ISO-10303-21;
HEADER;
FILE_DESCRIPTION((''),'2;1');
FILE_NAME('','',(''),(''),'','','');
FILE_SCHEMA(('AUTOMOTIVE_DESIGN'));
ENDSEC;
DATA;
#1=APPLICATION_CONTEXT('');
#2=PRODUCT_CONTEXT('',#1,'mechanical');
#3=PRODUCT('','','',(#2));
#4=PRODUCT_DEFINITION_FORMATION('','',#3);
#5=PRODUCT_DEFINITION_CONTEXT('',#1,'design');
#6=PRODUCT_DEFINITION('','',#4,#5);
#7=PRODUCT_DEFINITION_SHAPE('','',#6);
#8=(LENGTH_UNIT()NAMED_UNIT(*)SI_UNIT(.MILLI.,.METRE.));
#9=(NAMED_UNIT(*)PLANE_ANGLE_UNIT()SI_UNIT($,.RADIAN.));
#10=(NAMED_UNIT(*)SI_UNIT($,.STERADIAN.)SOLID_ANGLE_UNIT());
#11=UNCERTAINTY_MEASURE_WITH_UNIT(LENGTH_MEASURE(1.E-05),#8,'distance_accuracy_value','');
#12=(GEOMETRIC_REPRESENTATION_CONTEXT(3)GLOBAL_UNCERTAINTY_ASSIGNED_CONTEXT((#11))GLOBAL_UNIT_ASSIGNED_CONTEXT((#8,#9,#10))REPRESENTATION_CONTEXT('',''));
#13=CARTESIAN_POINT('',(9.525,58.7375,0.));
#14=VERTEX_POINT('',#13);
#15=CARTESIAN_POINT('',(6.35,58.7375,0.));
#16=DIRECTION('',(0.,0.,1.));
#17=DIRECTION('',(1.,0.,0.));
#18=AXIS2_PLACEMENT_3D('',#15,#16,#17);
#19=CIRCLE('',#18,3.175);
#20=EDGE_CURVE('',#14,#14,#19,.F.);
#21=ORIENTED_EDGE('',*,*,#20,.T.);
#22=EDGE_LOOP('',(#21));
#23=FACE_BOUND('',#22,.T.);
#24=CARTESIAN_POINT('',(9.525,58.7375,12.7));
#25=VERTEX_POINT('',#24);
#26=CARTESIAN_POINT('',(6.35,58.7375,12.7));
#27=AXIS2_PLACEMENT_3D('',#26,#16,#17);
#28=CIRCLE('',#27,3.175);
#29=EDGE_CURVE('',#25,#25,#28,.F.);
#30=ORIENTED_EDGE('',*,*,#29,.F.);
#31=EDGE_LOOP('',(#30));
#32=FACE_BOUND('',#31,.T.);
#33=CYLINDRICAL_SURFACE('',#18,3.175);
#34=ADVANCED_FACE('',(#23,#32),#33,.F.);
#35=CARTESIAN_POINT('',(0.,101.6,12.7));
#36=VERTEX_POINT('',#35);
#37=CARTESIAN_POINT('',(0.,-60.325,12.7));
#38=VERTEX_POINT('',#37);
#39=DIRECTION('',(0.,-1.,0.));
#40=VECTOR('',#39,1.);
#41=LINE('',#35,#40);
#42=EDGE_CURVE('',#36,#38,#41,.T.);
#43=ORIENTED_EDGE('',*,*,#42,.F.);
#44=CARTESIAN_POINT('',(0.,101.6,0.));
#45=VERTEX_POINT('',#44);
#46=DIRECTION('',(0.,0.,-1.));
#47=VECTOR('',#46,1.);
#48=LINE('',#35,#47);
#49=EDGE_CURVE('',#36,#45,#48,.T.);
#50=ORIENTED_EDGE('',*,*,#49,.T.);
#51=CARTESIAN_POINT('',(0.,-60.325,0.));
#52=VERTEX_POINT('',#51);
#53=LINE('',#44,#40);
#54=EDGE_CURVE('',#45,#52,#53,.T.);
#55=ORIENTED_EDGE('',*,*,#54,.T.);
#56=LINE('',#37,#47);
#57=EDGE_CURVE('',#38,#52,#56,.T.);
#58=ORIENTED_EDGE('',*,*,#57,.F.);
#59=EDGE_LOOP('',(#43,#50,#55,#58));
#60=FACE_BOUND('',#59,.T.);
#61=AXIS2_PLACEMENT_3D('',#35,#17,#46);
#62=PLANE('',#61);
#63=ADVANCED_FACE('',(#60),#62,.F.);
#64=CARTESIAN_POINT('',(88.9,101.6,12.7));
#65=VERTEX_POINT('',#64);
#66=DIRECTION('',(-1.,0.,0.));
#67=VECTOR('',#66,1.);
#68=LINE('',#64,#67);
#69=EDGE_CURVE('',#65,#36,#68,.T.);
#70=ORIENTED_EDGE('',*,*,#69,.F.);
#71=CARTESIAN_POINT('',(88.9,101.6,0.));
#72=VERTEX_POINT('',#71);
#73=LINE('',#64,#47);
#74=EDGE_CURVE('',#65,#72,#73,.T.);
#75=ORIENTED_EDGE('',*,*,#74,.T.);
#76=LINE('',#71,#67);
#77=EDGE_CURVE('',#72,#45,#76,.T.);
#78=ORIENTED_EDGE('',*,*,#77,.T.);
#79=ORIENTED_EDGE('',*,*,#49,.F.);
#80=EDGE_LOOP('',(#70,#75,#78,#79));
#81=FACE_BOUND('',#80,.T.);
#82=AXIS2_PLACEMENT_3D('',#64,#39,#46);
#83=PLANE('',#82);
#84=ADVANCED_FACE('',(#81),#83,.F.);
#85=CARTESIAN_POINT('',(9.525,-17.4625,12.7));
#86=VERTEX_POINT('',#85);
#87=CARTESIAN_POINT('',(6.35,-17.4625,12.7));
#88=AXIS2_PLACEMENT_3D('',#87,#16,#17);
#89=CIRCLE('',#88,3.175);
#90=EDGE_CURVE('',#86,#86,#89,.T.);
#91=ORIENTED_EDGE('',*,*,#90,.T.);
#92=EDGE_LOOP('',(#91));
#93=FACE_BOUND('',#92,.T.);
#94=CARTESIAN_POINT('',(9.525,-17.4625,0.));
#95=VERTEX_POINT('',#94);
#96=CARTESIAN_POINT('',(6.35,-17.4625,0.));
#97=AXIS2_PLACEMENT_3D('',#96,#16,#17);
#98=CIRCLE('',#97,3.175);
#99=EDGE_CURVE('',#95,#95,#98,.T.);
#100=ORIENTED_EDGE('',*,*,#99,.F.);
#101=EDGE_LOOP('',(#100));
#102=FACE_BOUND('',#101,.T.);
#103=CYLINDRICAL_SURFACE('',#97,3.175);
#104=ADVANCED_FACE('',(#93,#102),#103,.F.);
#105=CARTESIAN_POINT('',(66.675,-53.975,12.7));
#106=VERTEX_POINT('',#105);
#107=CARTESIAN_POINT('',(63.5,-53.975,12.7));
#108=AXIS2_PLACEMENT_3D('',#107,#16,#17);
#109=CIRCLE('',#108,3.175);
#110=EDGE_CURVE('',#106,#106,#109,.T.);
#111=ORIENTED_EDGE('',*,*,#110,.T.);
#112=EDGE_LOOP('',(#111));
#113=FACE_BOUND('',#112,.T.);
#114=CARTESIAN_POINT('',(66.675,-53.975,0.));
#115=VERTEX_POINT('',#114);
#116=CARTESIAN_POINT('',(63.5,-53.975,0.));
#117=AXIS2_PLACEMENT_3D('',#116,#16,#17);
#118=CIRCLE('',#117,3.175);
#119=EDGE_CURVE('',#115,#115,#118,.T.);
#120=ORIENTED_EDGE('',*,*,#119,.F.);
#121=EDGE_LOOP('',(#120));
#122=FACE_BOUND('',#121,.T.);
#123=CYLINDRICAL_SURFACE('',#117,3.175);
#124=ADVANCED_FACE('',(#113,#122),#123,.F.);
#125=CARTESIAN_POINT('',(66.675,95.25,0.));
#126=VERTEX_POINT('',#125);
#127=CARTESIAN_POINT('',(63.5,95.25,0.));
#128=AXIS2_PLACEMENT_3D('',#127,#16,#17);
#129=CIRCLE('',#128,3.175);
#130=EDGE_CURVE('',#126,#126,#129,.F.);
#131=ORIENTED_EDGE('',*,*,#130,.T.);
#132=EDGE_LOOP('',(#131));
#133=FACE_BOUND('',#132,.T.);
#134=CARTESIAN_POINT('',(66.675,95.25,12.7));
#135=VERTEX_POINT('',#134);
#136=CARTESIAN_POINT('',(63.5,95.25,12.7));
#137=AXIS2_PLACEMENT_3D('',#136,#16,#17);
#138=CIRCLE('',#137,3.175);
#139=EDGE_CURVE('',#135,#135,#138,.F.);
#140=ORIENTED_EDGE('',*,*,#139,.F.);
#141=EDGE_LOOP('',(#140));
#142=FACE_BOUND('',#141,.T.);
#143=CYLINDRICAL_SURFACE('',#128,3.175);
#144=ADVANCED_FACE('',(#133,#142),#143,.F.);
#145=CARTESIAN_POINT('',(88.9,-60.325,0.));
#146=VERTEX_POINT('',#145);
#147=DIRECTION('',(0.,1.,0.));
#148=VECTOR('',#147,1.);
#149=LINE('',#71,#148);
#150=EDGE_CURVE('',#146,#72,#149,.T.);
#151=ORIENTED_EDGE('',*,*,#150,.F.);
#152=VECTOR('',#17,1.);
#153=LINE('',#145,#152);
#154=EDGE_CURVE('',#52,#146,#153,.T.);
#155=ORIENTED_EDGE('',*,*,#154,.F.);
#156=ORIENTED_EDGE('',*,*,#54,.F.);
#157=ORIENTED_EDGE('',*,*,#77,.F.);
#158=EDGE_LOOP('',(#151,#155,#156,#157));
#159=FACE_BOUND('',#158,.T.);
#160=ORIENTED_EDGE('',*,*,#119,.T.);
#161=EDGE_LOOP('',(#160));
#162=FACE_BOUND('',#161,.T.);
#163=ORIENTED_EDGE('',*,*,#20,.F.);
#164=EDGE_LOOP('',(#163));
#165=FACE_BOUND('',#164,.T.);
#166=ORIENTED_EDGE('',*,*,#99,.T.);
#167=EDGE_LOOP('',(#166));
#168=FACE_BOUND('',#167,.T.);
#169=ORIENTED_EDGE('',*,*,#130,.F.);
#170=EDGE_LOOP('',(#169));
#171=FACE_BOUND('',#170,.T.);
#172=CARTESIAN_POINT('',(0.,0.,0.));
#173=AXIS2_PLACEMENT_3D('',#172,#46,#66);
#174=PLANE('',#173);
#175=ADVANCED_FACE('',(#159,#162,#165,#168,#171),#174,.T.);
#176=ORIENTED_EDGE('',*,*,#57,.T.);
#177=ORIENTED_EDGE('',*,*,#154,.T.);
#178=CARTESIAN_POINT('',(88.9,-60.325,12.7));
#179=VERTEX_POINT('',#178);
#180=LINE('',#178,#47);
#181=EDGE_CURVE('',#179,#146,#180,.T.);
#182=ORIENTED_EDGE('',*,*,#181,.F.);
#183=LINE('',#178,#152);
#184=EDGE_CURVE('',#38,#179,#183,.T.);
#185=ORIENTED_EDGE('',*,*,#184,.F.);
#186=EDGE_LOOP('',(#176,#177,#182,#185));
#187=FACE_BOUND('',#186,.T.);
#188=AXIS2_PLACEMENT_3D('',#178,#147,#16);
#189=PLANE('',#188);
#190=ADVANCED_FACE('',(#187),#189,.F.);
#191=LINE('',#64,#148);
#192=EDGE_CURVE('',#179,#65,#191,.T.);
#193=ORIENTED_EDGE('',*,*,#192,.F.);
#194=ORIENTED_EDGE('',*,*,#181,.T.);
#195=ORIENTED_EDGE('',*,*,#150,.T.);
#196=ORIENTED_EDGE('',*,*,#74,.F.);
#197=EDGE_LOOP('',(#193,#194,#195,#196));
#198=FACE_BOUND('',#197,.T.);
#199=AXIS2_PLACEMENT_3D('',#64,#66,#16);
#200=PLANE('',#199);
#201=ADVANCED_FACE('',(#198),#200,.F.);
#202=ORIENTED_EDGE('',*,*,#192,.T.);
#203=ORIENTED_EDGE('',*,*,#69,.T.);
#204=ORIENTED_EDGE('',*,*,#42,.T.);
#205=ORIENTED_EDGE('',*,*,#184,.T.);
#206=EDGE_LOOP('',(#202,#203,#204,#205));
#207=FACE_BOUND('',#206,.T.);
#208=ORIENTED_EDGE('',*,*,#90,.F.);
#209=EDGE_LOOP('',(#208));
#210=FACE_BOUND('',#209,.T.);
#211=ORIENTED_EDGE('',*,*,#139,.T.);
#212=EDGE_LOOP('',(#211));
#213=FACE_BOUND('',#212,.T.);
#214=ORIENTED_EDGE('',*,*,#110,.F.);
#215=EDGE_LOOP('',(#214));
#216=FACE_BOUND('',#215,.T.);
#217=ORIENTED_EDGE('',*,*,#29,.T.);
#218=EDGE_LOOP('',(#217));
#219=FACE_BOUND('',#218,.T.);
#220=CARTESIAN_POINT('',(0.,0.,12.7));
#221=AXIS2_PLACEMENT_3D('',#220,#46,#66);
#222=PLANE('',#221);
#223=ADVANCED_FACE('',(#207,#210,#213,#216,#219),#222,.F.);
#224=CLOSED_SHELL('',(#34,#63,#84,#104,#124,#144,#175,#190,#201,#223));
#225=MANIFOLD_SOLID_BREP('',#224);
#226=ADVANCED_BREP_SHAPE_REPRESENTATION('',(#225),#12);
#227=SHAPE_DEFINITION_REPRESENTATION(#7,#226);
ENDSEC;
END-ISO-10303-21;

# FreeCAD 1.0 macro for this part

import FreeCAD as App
import Part
import Sketcher
from FreeCAD import Vector
Q = App.Units.Quantity

doc = App.newDocument("Part")
body = doc.addObject("PartDesign::Body", "Body")

sketch1 = body.newObject("Sketcher::SketchObject", "Sketch")
sketch1.AttachmentSupport = (doc.getObject("XY_Plane"), [""])
sketch1.MapMode = "FlatFace"
sketch1.addGeometry([
    Part.LineSegment(Vector(0, 102, 0), Vector(0, -60, 0)),
    Part.LineSegment(Vector(0, -60, 0), Vector(89, -60, 0)),
    Part.LineSegment(Vector(89, -60, 0), Vector(89, 102, 0)),
    Part.LineSegment(Vector(89, 102, 0), Vector(0, 102, 0)),
], False)
sketch1.addConstraint([
    Sketcher.Constraint("Coincident", 0, 2, 1, 1),
    Sketcher.Constraint("Coincident", 1, 2, 2, 1),
    Sketcher.Constraint("Coincident", 2, 2, 3, 1),
    Sketcher.Constraint("Coincident", 3, 2, 0, 1),
    Sketcher.Constraint("Vertical", 0),
    Sketcher.Constraint("Horizontal", 1),
    Sketcher.Constraint("Vertical", 2),
    Sketcher.Constraint("Horizontal", 3),
    Sketcher.Constraint("PointOnObject", 0, 2, -2),
    Sketcher.Constraint("DistanceX", 1, 1, 1, 2, Q("3.5 in")),
    Sketcher.Constraint("DistanceY", -1, 1, 2, 2, Q("4 in")),
    Sketcher.Constraint("DistanceY", 0, 2, 0, 1, Q("6.375 in")),
])
pad1 = body.newObject("PartDesign::Pad", "Pad")
pad1.Profile = sketch1
pad1.Length = Q("0.5 in")

sketch2 = body.newObject("Sketcher::SketchObject", "Sketch001")
sketch2.AttachmentSupport = (doc.getObject("XY_Plane"), [""])
sketch2.MapMode = "FlatFace"
sketch2.AttachmentOffset = App.Placement(Vector(0, 0, 0.5 * 25.4), App.Rotation())
sketch2.addGeometry([
    Part.Circle(Vector(63.5, -54, 0), Vector(0, 0, 1), 3.2),
    Part.Circle(Vector(6.3, -17.5, 0), Vector(0, 0, 1), 3.2),
    Part.Circle(Vector(6.3, 58.7, 0), Vector(0, 0, 1), 3.2),
    Part.Circle(Vector(63.5, 95.2, 0), Vector(0, 0, 1), 3.2),
], False)
sketch2.addConstraint([
    Sketcher.Constraint("Equal", 0, 1),
    Sketcher.Constraint("Equal", 1, 2),
    Sketcher.Constraint("Equal", 2, 3),
    Sketcher.Constraint("Vertical", 1, 3, 2, 3),
    Sketcher.Constraint("Vertical", 0, 3, 3, 3),
    Sketcher.Constraint("Diameter", 0, Q("0.25 in")),
    Sketcher.Constraint("DistanceY", 1, 3, 2, 3, Q("3 in")),
    Sketcher.Constraint("DistanceX", -1, 1, 0, 3, Q("2.5 in")),
    Sketcher.Constraint("DistanceX", -1, 1, 1, 3, Q("0.25 in")),
    Sketcher.Constraint("DistanceY", -1, 1, 3, 3, Q("3.75 in")),
    Sketcher.Constraint("DistanceY", 0, 3, -1, 1, Q("2.125 in")),
    Sketcher.Constraint("DistanceY", 1, 3, -1, 1, Q("0.6875 in")),
])
pocket1 = body.newObject("PartDesign::Pocket", "Pocket")
pocket1.Profile = sketch2
pocket1.Length = Q("0.5 in")

doc.recompute()
